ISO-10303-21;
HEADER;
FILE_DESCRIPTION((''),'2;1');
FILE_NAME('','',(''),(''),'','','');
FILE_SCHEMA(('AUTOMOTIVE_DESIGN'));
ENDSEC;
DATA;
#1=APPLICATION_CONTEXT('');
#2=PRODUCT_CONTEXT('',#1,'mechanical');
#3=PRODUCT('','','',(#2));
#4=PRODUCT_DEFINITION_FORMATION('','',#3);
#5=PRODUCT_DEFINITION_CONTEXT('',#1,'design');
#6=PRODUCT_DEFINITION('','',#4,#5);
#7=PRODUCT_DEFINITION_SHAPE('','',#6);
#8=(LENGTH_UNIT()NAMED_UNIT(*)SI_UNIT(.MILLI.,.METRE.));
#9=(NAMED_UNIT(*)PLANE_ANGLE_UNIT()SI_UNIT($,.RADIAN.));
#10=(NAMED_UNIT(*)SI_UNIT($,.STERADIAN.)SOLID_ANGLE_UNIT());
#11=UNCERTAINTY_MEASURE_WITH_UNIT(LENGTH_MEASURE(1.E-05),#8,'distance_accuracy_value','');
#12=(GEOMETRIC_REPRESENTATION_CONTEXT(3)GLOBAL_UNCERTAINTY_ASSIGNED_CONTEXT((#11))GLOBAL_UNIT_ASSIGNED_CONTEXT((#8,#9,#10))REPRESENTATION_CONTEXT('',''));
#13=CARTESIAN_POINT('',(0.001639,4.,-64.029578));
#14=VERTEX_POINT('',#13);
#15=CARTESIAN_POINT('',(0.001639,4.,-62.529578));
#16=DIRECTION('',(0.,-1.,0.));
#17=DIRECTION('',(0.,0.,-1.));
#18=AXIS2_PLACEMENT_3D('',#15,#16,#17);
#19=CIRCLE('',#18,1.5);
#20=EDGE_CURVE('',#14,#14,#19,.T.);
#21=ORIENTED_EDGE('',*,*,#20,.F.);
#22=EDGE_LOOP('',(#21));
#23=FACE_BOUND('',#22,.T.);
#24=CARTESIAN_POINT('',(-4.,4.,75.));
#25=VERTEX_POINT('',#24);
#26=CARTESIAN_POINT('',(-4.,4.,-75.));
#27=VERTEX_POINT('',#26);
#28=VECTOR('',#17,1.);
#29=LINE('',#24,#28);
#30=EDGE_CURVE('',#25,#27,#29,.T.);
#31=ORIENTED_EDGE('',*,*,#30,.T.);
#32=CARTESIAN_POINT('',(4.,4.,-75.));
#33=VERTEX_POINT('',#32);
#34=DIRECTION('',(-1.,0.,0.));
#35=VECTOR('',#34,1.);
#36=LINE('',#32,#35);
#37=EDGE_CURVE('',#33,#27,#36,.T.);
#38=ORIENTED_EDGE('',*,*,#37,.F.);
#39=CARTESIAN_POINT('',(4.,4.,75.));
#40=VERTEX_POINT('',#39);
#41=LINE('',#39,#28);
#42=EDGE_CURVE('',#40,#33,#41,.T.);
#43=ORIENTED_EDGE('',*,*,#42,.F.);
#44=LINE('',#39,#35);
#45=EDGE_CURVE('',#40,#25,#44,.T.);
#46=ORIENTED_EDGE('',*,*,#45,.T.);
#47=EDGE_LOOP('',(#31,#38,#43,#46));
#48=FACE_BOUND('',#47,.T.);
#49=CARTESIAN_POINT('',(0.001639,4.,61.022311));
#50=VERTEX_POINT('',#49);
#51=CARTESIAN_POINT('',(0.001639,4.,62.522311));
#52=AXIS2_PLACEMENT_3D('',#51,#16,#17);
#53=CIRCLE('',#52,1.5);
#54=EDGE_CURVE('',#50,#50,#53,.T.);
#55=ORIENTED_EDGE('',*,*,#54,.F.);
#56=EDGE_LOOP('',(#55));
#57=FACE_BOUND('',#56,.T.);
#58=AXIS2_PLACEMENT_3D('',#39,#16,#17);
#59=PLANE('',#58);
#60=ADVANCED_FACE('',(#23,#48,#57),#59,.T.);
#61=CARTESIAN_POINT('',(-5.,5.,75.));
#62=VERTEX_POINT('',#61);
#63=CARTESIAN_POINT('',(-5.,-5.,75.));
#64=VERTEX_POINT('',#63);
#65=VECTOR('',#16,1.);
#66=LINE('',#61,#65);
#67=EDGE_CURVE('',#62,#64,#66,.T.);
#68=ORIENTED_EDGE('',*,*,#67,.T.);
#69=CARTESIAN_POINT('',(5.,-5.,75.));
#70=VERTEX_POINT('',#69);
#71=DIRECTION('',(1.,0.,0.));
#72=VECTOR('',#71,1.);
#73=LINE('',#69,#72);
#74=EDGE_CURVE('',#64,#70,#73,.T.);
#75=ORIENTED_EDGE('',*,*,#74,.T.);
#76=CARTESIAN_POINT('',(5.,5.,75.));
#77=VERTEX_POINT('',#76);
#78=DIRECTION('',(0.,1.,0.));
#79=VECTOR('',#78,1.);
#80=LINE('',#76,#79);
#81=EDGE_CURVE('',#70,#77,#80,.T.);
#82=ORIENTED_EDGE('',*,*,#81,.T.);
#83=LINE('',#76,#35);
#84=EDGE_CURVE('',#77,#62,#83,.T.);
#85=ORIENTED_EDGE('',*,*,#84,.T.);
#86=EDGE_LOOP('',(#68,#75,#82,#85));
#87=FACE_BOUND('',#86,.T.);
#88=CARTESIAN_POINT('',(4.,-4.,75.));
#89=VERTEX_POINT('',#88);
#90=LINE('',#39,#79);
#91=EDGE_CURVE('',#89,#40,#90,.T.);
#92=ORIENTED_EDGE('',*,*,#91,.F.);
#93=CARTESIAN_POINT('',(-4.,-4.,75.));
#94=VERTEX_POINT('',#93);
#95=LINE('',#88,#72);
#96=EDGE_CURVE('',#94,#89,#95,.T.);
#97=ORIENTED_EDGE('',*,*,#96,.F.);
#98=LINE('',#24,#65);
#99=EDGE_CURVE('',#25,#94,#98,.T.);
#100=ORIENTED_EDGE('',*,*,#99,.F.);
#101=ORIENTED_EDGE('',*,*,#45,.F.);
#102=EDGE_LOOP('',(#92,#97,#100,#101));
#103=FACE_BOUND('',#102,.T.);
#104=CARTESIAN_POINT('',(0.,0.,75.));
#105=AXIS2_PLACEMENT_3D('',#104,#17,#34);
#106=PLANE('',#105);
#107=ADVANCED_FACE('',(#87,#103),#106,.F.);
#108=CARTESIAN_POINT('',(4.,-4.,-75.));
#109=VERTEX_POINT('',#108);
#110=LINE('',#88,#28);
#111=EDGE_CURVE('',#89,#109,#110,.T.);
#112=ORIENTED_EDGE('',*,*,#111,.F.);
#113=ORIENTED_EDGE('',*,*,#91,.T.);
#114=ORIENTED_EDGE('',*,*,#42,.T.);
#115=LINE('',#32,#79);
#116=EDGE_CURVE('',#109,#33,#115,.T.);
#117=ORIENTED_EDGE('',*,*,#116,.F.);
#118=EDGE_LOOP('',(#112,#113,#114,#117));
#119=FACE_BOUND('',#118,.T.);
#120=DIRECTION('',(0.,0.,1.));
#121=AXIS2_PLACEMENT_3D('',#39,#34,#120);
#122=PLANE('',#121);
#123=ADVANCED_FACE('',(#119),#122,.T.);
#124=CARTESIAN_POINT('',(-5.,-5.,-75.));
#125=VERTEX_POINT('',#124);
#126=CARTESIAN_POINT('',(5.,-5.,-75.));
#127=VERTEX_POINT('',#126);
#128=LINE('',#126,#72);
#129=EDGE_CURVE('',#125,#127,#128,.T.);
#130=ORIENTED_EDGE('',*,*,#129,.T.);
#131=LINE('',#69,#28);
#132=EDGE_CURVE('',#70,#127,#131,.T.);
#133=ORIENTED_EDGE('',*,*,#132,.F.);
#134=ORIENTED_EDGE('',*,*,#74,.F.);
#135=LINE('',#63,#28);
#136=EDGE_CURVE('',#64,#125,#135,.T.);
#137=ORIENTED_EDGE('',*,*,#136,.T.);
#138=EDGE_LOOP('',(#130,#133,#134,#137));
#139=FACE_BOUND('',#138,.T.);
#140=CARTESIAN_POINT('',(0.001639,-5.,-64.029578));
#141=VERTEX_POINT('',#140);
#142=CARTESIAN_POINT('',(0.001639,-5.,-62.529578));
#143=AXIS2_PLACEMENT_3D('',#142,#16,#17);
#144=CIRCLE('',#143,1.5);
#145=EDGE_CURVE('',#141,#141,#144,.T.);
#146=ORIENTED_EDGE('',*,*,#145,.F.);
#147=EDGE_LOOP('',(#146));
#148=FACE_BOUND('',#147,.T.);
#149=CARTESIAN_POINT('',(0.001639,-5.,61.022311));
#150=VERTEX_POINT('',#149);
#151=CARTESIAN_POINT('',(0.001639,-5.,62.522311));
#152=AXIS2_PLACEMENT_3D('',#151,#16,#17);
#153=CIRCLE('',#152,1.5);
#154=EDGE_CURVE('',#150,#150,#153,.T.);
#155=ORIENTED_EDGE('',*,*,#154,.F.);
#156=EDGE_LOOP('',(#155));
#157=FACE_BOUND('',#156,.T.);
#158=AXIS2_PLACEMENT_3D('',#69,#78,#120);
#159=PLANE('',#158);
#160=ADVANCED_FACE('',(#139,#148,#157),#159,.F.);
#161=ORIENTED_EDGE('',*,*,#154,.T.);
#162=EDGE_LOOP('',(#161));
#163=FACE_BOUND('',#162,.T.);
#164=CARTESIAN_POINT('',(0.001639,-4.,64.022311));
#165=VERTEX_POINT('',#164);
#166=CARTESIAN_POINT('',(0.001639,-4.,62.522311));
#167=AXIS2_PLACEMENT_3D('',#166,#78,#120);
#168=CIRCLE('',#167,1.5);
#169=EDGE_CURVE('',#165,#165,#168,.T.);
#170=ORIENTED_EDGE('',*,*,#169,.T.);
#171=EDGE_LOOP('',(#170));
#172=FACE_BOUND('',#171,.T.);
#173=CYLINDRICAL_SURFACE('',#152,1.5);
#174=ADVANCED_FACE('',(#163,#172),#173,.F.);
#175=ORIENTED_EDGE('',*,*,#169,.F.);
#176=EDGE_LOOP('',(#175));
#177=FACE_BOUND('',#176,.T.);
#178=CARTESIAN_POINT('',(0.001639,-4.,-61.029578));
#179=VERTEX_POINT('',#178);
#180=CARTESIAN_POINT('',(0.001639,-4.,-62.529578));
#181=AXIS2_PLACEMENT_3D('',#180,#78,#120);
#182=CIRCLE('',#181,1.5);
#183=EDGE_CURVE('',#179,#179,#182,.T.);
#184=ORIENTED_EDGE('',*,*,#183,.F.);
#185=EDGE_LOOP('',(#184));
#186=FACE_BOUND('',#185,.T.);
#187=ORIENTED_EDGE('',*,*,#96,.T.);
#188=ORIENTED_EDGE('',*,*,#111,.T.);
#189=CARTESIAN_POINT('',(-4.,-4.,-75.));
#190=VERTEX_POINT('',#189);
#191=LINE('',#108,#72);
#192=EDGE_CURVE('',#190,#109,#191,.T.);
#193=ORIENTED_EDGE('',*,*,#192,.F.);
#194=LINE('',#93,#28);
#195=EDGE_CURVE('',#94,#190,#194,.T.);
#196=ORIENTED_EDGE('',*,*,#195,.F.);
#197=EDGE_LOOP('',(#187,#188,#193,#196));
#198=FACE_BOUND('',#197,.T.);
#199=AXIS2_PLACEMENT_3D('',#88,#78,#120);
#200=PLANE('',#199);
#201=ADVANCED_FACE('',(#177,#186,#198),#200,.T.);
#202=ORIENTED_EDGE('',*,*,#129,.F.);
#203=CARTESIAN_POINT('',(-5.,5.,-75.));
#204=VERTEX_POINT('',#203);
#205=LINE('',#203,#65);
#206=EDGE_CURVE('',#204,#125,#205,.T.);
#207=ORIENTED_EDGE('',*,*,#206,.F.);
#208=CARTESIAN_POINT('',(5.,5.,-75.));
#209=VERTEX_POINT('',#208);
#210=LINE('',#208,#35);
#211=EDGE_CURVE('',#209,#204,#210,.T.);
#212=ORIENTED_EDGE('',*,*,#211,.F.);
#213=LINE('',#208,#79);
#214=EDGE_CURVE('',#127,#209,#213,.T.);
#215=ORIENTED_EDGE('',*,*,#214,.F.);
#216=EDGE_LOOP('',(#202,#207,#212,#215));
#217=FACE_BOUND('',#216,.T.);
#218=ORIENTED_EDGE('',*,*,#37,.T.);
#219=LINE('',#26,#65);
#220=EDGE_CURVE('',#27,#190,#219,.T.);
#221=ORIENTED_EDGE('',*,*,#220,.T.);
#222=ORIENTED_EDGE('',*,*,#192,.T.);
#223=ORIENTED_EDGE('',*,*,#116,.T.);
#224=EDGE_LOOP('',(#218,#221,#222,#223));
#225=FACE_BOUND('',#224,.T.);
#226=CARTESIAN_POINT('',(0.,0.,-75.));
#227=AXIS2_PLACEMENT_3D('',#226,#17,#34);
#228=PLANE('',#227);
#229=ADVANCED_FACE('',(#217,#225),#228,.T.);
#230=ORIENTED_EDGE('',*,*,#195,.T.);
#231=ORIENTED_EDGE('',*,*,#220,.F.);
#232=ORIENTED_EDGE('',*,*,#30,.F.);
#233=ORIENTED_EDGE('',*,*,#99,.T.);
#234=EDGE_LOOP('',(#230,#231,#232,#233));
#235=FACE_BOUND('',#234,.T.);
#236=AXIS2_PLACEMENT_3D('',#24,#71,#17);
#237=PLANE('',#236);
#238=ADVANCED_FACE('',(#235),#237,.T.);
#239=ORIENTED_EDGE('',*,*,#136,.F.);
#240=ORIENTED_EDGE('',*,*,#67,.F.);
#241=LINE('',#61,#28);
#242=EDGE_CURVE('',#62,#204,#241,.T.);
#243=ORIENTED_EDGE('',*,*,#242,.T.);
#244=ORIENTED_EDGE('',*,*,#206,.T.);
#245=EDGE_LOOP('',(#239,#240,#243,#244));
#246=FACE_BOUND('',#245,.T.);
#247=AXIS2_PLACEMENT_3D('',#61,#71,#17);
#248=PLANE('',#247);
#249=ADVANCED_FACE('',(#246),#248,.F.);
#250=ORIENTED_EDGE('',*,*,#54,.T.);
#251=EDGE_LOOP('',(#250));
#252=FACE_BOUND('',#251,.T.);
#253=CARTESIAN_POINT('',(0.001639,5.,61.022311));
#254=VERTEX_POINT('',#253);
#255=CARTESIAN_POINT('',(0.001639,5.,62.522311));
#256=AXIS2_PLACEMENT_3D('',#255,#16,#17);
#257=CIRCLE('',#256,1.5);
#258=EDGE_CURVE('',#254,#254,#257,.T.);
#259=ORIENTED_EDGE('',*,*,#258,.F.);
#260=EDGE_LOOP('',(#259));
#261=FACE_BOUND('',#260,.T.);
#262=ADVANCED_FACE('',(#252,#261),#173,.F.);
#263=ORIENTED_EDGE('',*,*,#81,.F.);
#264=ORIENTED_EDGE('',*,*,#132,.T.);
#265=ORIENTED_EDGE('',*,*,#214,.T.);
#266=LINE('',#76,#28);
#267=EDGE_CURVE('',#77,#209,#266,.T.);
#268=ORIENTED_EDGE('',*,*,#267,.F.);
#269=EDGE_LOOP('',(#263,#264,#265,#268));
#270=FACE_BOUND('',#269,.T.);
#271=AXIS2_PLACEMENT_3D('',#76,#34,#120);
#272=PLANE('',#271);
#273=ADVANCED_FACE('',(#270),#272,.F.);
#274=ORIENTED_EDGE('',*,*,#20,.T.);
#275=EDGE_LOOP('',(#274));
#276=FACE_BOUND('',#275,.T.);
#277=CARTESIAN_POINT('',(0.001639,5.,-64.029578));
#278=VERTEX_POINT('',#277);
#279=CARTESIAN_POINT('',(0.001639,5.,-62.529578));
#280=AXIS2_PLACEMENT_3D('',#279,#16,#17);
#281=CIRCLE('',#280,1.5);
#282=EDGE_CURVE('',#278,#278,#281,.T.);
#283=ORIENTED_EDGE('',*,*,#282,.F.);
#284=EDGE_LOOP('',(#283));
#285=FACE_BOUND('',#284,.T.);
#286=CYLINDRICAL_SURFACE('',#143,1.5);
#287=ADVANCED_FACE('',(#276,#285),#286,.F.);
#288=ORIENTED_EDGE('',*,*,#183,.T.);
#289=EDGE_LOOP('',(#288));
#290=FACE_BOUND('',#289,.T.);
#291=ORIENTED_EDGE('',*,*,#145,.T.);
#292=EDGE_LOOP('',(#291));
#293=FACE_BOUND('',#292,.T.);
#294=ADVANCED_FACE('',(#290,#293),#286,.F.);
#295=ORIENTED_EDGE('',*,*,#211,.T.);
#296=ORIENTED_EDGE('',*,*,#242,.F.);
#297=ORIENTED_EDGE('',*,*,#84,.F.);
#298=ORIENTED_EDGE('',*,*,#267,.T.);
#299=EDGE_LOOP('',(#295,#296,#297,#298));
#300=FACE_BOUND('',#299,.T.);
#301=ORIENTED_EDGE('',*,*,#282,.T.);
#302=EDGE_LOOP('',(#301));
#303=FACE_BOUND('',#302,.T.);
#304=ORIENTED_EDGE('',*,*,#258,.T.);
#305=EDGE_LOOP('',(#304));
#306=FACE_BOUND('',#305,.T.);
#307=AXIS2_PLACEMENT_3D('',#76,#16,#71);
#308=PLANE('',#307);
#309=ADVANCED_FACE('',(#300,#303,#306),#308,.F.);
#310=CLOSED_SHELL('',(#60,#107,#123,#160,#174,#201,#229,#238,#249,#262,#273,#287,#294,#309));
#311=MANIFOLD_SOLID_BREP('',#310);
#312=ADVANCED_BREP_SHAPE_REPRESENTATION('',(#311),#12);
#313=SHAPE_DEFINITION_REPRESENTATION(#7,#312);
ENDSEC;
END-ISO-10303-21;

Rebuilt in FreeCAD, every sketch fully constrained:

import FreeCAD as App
import Part
import Sketcher
from FreeCAD import Vector

doc = App.newDocument("Part")
body = doc.addObject("PartDesign::Body", "Body")

# Sketch on XY plane
sketch1 = body.newObject("Sketcher::SketchObject", "Sketch")
sketch1.AttachmentSupport = (doc.getObject("XY_Plane"), [""])
sketch1.MapMode = "FlatFace"
sketch1.addGeometry([
    Part.LineSegment(Vector(-5, 5, 0), Vector(-5, -5, 0)),  # 0
    Part.LineSegment(Vector(-5, -5, 0), Vector(5, -5, 0)),  # 1
    Part.LineSegment(Vector(5, -5, 0), Vector(5, 5, 0)),  # 2
    Part.LineSegment(Vector(5, 5, 0), Vector(-5, 5, 0)),  # 3
    Part.LineSegment(Vector(4, -4, 0), Vector(-4, -4, 0)),  # 4
    Part.LineSegment(Vector(-4, -4, 0), Vector(-4, 4, 0)),  # 5
    Part.LineSegment(Vector(-4, 4, 0), Vector(4, 4, 0)),  # 6
    Part.LineSegment(Vector(4, 4, 0), Vector(4, -4, 0)),  # 7
], False)
sketch1.addConstraint([
    Sketcher.Constraint("Coincident", 0, 2, 1, 1),
    Sketcher.Constraint("Coincident", 1, 2, 2, 1),
    Sketcher.Constraint("Coincident", 2, 2, 3, 1),
    Sketcher.Constraint("Coincident", 3, 2, 0, 1),
    Sketcher.Constraint("Coincident", 4, 2, 5, 1),
    Sketcher.Constraint("Coincident", 5, 2, 6, 1),
    Sketcher.Constraint("Coincident", 6, 2, 7, 1),
    Sketcher.Constraint("Coincident", 7, 2, 4, 1),
    Sketcher.Constraint("Vertical", 0),
    Sketcher.Constraint("Horizontal", 1),
    Sketcher.Constraint("Vertical", 2),
    Sketcher.Constraint("Horizontal", 3),
    Sketcher.Constraint("Horizontal", 4),
    Sketcher.Constraint("Vertical", 5),
    Sketcher.Constraint("Horizontal", 6),
    Sketcher.Constraint("Vertical", 7),
    Sketcher.Constraint("Symmetric", 0, 2, 2, 2, -1, 1),
    Sketcher.Constraint("Symmetric", 4, 2, 6, 2, -1, 1),
    Sketcher.Constraint("Equal", 3, 0),
    Sketcher.Constraint("Equal", 6, 5),
    Sketcher.Constraint("DistanceX", 1, 1, 1, 2, 10.0),
    Sketcher.Constraint("DistanceX", 4, 2, 4, 1, 8.0),
])
pad1 = body.newObject("PartDesign::Pad", "Pad")
pad1.Profile = sketch1
pad1.Length = 150
pad1.Midplane = True

# Sketch on XZ plane
sketch2 = body.newObject("Sketcher::SketchObject", "Sketch001")
sketch2.AttachmentSupport = (doc.getObject("XZ_Plane"), [""])
sketch2.MapMode = "FlatFace"
sketch2.AttachmentOffset = App.Placement(Vector(0, 0, 5), App.Rotation())
sketch2.addGeometry([
    Part.Circle(Vector(0.001639, 62.522311, 0), Vector(0, 0, 1), 1.5),
    Part.Circle(Vector(0.001639, -62.529578, 0), Vector(0, 0, 1), 1.5),
], False)
sketch2.addConstraint([
    Sketcher.Constraint("Equal", 0, 1),
    Sketcher.Constraint("Vertical", 0, 3, 1, 3),
    Sketcher.Constraint("Diameter", 0, 3.0),
    Sketcher.Constraint("DistanceX", -1, 1, 0, 3, 0.001639),
    Sketcher.Constraint("DistanceY", -1, 1, 0, 3, 62.522311),
    Sketcher.Constraint("DistanceY", 1, 3, 0, 3, 125.051889),
])
doc.recompute()
hole = body.newObject("PartDesign::Hole", "Hole")
hole.Profile = sketch2
hole.ThreadType = "None"
hole.Diameter = 3
hole.DepthType = "ThroughAll"

doc.recompute()
